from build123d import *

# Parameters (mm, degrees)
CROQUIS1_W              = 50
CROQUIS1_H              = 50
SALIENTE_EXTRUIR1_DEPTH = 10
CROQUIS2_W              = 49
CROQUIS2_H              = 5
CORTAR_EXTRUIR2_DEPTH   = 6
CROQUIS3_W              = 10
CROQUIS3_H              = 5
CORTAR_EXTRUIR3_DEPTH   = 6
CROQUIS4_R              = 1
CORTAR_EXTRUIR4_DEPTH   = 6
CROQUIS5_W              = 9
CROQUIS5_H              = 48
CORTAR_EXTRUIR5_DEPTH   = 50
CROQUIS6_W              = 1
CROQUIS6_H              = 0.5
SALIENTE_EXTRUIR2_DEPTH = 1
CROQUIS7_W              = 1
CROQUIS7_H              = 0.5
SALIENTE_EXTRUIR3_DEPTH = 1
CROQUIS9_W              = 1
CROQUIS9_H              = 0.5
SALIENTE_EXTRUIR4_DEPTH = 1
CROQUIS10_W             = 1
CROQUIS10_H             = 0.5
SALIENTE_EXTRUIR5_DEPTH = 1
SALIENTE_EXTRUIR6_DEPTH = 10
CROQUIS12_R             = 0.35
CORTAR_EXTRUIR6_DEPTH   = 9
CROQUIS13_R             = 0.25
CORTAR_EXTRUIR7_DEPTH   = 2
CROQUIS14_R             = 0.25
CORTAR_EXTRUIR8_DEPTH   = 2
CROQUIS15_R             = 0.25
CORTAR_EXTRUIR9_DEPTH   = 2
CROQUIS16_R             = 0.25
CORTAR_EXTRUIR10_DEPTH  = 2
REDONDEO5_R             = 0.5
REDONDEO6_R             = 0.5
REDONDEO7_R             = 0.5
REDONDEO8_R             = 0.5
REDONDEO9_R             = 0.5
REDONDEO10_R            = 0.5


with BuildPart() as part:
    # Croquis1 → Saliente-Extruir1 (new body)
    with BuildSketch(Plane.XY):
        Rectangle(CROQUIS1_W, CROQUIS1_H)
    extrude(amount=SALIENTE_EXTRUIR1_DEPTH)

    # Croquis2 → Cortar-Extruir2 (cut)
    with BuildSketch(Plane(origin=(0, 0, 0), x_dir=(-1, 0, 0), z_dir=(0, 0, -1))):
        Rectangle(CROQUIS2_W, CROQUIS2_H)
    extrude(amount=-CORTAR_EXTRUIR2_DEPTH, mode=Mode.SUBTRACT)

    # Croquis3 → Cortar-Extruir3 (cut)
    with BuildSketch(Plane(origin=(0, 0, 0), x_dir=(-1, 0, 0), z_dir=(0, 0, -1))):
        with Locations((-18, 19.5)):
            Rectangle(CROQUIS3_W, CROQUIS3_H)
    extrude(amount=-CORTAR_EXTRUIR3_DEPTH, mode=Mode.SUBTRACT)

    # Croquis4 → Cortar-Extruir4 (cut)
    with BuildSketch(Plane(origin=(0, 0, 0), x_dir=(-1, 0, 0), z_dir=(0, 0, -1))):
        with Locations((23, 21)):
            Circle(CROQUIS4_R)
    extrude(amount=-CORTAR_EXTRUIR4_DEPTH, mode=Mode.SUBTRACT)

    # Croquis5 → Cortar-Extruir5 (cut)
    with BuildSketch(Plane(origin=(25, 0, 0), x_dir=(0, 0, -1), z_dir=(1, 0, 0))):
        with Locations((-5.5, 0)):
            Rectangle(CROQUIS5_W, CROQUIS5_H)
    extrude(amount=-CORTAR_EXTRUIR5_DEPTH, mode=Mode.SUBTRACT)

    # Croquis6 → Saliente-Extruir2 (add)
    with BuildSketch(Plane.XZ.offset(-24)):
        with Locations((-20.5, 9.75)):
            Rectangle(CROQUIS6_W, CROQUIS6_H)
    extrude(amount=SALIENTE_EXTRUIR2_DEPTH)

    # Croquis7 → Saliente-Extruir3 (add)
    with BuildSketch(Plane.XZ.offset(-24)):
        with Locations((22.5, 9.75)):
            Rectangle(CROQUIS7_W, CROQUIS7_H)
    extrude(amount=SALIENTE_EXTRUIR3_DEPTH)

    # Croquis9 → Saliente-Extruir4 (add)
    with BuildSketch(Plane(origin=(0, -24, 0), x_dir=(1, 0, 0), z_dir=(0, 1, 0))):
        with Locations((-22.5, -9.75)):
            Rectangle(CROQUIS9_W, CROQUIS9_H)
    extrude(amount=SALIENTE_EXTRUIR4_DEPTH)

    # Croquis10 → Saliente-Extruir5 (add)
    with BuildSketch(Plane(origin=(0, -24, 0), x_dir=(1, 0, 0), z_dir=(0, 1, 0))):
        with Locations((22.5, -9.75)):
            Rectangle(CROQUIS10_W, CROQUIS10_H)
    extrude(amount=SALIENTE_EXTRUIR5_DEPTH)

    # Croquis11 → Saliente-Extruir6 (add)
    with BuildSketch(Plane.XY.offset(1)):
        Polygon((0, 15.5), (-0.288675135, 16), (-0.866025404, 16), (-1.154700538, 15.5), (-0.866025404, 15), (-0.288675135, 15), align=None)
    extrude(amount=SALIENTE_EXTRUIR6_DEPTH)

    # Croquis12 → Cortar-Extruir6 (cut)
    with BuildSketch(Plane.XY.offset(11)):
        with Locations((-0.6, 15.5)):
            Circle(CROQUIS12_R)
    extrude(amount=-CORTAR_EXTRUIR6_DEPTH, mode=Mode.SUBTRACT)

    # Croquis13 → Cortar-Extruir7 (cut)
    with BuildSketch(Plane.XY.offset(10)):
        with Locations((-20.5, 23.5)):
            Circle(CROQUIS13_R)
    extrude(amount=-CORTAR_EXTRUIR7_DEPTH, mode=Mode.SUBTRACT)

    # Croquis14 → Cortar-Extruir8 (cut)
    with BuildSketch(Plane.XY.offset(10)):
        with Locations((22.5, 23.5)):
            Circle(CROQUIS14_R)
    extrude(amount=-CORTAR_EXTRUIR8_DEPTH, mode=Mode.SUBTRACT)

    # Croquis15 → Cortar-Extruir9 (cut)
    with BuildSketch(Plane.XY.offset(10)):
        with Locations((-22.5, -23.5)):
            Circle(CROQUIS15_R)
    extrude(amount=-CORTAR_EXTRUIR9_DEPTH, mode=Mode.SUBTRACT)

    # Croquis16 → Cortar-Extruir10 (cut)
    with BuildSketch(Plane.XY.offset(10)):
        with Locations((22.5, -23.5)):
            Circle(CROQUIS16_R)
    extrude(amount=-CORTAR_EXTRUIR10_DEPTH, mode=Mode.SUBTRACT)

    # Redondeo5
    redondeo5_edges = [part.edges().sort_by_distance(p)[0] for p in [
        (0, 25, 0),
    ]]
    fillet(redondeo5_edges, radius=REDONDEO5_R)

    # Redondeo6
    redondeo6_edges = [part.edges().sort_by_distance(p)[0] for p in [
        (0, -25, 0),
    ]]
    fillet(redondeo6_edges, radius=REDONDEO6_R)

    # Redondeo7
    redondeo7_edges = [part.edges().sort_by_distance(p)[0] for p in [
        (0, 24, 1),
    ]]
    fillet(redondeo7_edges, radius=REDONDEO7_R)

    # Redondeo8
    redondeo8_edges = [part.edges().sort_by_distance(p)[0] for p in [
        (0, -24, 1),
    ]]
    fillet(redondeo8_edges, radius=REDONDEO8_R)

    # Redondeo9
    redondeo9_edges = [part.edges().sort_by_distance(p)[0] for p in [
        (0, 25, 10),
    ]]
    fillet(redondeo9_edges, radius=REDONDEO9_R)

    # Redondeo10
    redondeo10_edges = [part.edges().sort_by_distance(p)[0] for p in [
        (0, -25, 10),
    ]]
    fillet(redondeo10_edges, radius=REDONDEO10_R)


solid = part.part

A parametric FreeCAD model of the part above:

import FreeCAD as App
import Part
import Sketcher
from FreeCAD import Vector
Q = App.Units.Quantity


def edges_at(feature, points):
    """Names of the edges that pass closest to the given points."""
    edges = feature.Shape.Edges
    near = lambda p: min(range(len(edges)), key=lambda i: edges[i].distToShape(Part.Vertex(*p))[0])
    return sorted({f"Edge{near(p) + 1}" for p in points})


def add_polygon(sketch, points):
    """Adds a closed chain of lines whose ends are joined by coincident constraints."""
    first, n = sketch.GeometryCount, len(points)
    for a, b in zip(points, points[1:] + points[:1]):
        sketch.addGeometry(Part.LineSegment(App.Vector(*a, 0), App.Vector(*b, 0)), False)
    for i in range(n):
        sketch.addConstraint(Sketcher.Constraint("Coincident", first + i, 2, first + (i + 1) % n, 1))

doc = App.newDocument("Part")
params = doc.addObject("Spreadsheet::Sheet", "Params")
for row, (alias, value) in enumerate([
    ("sketch1_width", "50 mm"),
    ("pad1_length", "10 mm"),
    ("sketch2_width", "49 mm"),
    ("sketch2_height", "5 mm"),
    ("pocket1_length", "6 mm"),
    ("sketch3_width", "10 mm"),
    ("sketch3_height", "5 mm"),
    ("pocket2_length", "6 mm"),
    ("sketch4_diameter", "2 mm"),
    ("pocket3_length", "6 mm"),
    ("sketch5_width", "48 mm"),
    ("sketch5_height", "9 mm"),
    ("pocket4_length", "50 mm"),
    ("sketch6_width", "1 mm"),
    ("sketch6_height", "0.5 mm"),
    ("pad2_length", "1 mm"),
    ("sketch7_width", "1 mm"),
    ("sketch7_height", "0.5 mm"),
    ("pad3_length", "1 mm"),
    ("sketch8_width", "1 mm"),
    ("sketch8_height", "0.5 mm"),
    ("pad4_length", "1 mm"),
    ("sketch9_width", "1 mm"),
    ("sketch9_height", "0.5 mm"),
    ("pad5_length", "1 mm"),
    ("pad6_length", "10 mm"),
    ("sketch11_diameter", "0.7 mm"),
    ("pocket5_length", "9 mm"),
    ("sketch12_diameter", "0.5 mm"),
    ("pocket6_length", "2 mm"),
    ("sketch13_diameter", "0.5 mm"),
    ("pocket7_length", "2 mm"),
    ("sketch14_diameter", "0.5 mm"),
    ("pocket8_length", "2 mm"),
    ("sketch15_diameter", "0.5 mm"),
    ("pocket9_length", "2 mm"),
    ("fillet_radius", "0.5 mm"),
    ("fillet2_radius", "0.5 mm"),
    ("fillet3_radius", "0.5 mm"),
    ("fillet4_radius", "0.5 mm"),
    ("fillet5_radius", "0.5 mm"),
    ("fillet6_radius", "0.5 mm"),
], start=1):
    params.set(f"A{row}", alias)
    params.set(f"B{row}", "=" + value)
    params.setAlias(f"B{row}", alias)

body = doc.addObject("PartDesign::Body", "Body")

# Sketch on XY plane
sketch1 = body.newObject("Sketcher::SketchObject", "Sketch")
sketch1.AttachmentSupport = (doc.getObject("XY_Plane"), [""])
sketch1.MapMode = "FlatFace"
add_polygon(sketch1, [(-25, 25), (-25, -25), (25, -25), (25, 25)])  # lines 0-3
sketch1.addConstraint([
    Sketcher.Constraint("Vertical", 0),
    Sketcher.Constraint("Horizontal", 1),
    Sketcher.Constraint("Vertical", 2),
    Sketcher.Constraint("Horizontal", 3),
    Sketcher.Constraint("Symmetric", 0, 2, 2, 2, -1, 1),
    Sketcher.Constraint("Equal", 3, 0),
    Sketcher.Constraint("DistanceX", 1, 1, 1, 2, 50.0),
])
sketch1.setExpression("Constraints[10]", "Params.sketch1_width")
pad1 = body.newObject("PartDesign::Pad", "Pad")
pad1.Profile = sketch1
pad1.setExpression("Length", "Params.pad1_length")

# Sketch on XY plane
sketch2 = body.newObject("Sketcher::SketchObject", "Sketch001")
sketch2.AttachmentSupport = (doc.getObject("XY_Plane"), [""])
sketch2.MapMode = "FlatFace"
add_polygon(sketch2, [(24, 2), (24, -2), (-24, -2), (-24, 2)])  # lines 0-3
sketch2.addConstraint([
    Sketcher.Constraint("Vertical", 0),
    Sketcher.Constraint("Horizontal", 1),
    Sketcher.Constraint("Vertical", 2),
    Sketcher.Constraint("Horizontal", 3),
    Sketcher.Constraint("Symmetric", 0, 2, 2, 2, -1, 1),
    Sketcher.Constraint("DistanceX", 1, 2, 1, 1, 49.0),
    Sketcher.Constraint("DistanceY", 0, 2, 0, 1, 5.0),
])
sketch2.setExpression("Constraints[9]", "Params.sketch2_width")
sketch2.setExpression("Constraints[10]", "Params.sketch2_height")
pocket1 = body.newObject("PartDesign::Pocket", "Pocket")
pocket1.Profile = sketch2
pocket1.setExpression("Length", "Params.pocket1_length")
pocket1.Reversed = True

# Sketch on XY plane
sketch3 = body.newObject("Sketcher::SketchObject", "Sketch002")
sketch3.AttachmentSupport = (doc.getObject("XY_Plane"), [""])
sketch3.MapMode = "FlatFace"
add_polygon(sketch3, [(23, 22), (23, 17), (13, 17), (13, 22)])  # lines 0-3
sketch3.addConstraint([
    Sketcher.Constraint("Vertical", 0),
    Sketcher.Constraint("Horizontal", 1),
    Sketcher.Constraint("Vertical", 2),
    Sketcher.Constraint("Horizontal", 3),
    Sketcher.Constraint("DistanceX", 1, 2, 1, 1, 10.0),
    Sketcher.Constraint("DistanceY", 0, 2, 0, 1, 5.0),
    Sketcher.Constraint("DistanceX", -1, 1, 0, 2, 23.0),
    Sketcher.Constraint("DistanceY", -1, 1, 0, 2, 17.0),
])
sketch3.setExpression("Constraints[8]", "Params.sketch3_width")
sketch3.setExpression("Constraints[9]", "Params.sketch3_height")
pocket2 = body.newObject("PartDesign::Pocket", "Pocket001")
pocket2.Profile = sketch3
pocket2.setExpression("Length", "Params.pocket2_length")
pocket2.Reversed = True

# Sketch on XY plane
sketch4 = body.newObject("Sketcher::SketchObject", "Sketch003")
sketch4.AttachmentSupport = (doc.getObject("XY_Plane"), [""])
sketch4.MapMode = "FlatFace"
sketch4.addGeometry(Part.Circle(Vector(-23, 21, 0), Vector(0, 0, 1), 1), False)
sketch4.addConstraint([
    Sketcher.Constraint("Diameter", 0, 2.0),
    Sketcher.Constraint("DistanceX", 0, 3, -1, 1, 23.0),
    Sketcher.Constraint("DistanceY", -1, 1, 0, 3, 21.0),
])
sketch4.setExpression("Constraints[0]", "Params.sketch4_diameter")
pocket3 = body.newObject("PartDesign::Pocket", "Pocket002")
pocket3.Profile = sketch4
pocket3.setExpression("Length", "Params.pocket3_length")
pocket3.Reversed = True

# Sketch on YZ plane
sketch5 = body.newObject("Sketcher::SketchObject", "Sketch004")
sketch5.AttachmentSupport = (doc.getObject("YZ_Plane"), [""])
sketch5.MapMode = "FlatFace"
sketch5.AttachmentOffset = App.Placement(Vector(0, 0, 25), App.Rotation())
add_polygon(sketch5, [(24, 10), (-24, 10), (-24, 1), (24, 1)])  # lines 0-3
sketch5.addConstraint([
    Sketcher.Constraint("Horizontal", 0),
    Sketcher.Constraint("Vertical", 1),
    Sketcher.Constraint("Horizontal", 2),
    Sketcher.Constraint("Vertical", 3),
    Sketcher.Constraint("DistanceX", 0, 2, 0, 1, 48.0),
    Sketcher.Constraint("DistanceY", 1, 2, 1, 1, 9.0),
    Sketcher.Constraint("DistanceX", 0, 2, -1, 1, 24.0),
    Sketcher.Constraint("DistanceY", -1, 1, 0, 2, 10.0),
])
sketch5.setExpression("Constraints[8]", "Params.sketch5_width")
sketch5.setExpression("Constraints[9]", "Params.sketch5_height")
pocket4 = body.newObject("PartDesign::Pocket", "Pocket003")
pocket4.Profile = sketch5
pocket4.setExpression("Length", "Params.pocket4_length")

# Sketch on XZ plane
sketch6 = body.newObject("Sketcher::SketchObject", "Sketch005")
sketch6.AttachmentSupport = (doc.getObject("XZ_Plane"), [""])
sketch6.MapMode = "FlatFace"
sketch6.AttachmentOffset = App.Placement(Vector(0, 0, -24), App.Rotation())
add_polygon(sketch6, [(-21, 10), (-21, 9.5), (-20, 9.5), (-20, 10)])  # lines 0-3
sketch6.addConstraint([
    Sketcher.Constraint("Vertical", 0),
    Sketcher.Constraint("Horizontal", 1),
    Sketcher.Constraint("Vertical", 2),
    Sketcher.Constraint("Horizontal", 3),
    Sketcher.Constraint("DistanceX", 1, 1, 1, 2, 1.0),
    Sketcher.Constraint("DistanceY", 0, 2, 0, 1, 0.5),
    Sketcher.Constraint("DistanceX", 0, 2, -1, 1, 21.0),
    Sketcher.Constraint("DistanceY", -1, 1, 2, 2, 10.0),
])
sketch6.setExpression("Constraints[8]", "Params.sketch6_width")
sketch6.setExpression("Constraints[9]", "Params.sketch6_height")
pad2 = body.newObject("PartDesign::Pad", "Pad001")
pad2.Profile = sketch6
pad2.setExpression("Length", "Params.pad2_length")

# Sketch on XZ plane
sketch7 = body.newObject("Sketcher::SketchObject", "Sketch006")
sketch7.AttachmentSupport = (doc.getObject("XZ_Plane"), [""])
sketch7.MapMode = "FlatFace"
sketch7.AttachmentOffset = App.Placement(Vector(0, 0, -24), App.Rotation())
add_polygon(sketch7, [(22, 10), (22, 9.5), (23, 9.5), (23, 10)])  # lines 0-3
sketch7.addConstraint([
    Sketcher.Constraint("Vertical", 0),
    Sketcher.Constraint("Horizontal", 1),
    Sketcher.Constraint("Vertical", 2),
    Sketcher.Constraint("Horizontal", 3),
    Sketcher.Constraint("DistanceX", 1, 1, 1, 2, 1.0),
    Sketcher.Constraint("DistanceY", 0, 2, 0, 1, 0.5),
    Sketcher.Constraint("DistanceX", -1, 1, 0, 2, 22.0),
    Sketcher.Constraint("DistanceY", -1, 1, 2, 2, 10.0),
])
sketch7.setExpression("Constraints[8]", "Params.sketch7_width")
sketch7.setExpression("Constraints[9]", "Params.sketch7_height")
pad3 = body.newObject("PartDesign::Pad", "Pad002")
pad3.Profile = sketch7
pad3.setExpression("Length", "Params.pad3_length")

# Sketch on XZ plane
sketch8 = body.newObject("Sketcher::SketchObject", "Sketch007")
sketch8.AttachmentSupport = (doc.getObject("XZ_Plane"), [""])
sketch8.MapMode = "FlatFace"
sketch8.AttachmentOffset = App.Placement(Vector(0, 0, 24), App.Rotation())
add_polygon(sketch8, [(-23, 9.5), (-23, 10), (-22, 10), (-22, 9.5)])  # lines 0-3
sketch8.addConstraint([
    Sketcher.Constraint("Vertical", 0),
    Sketcher.Constraint("Horizontal", 1),
    Sketcher.Constraint("Vertical", 2),
    Sketcher.Constraint("Horizontal", 3),
    Sketcher.Constraint("DistanceX", 1, 1, 1, 2, 1.0),
    Sketcher.Constraint("DistanceY", 0, 1, 0, 2, 0.5),
    Sketcher.Constraint("DistanceX", 0, 2, -1, 1, 23.0),
    Sketcher.Constraint("DistanceY", -1, 1, 0, 2, 10.0),
])
sketch8.setExpression("Constraints[8]", "Params.sketch8_width")
sketch8.setExpression("Constraints[9]", "Params.sketch8_height")
pad4 = body.newObject("PartDesign::Pad", "Pad003")
pad4.Profile = sketch8
pad4.setExpression("Length", "Params.pad4_length")
pad4.Reversed = True

# Sketch on XZ plane
sketch9 = body.newObject("Sketcher::SketchObject", "Sketch008")
sketch9.AttachmentSupport = (doc.getObject("XZ_Plane"), [""])
sketch9.MapMode = "FlatFace"
sketch9.AttachmentOffset = App.Placement(Vector(0, 0, 24), App.Rotation())
add_polygon(sketch9, [(22, 9.5), (22, 10), (23, 10), (23, 9.5)])  # lines 0-3
sketch9.addConstraint([
    Sketcher.Constraint("Vertical", 0),
    Sketcher.Constraint("Horizontal", 1),
    Sketcher.Constraint("Vertical", 2),
    Sketcher.Constraint("Horizontal", 3),
    Sketcher.Constraint("DistanceX", 1, 1, 1, 2, 1.0),
    Sketcher.Constraint("DistanceY", 0, 1, 0, 2, 0.5),
    Sketcher.Constraint("DistanceX", -1, 1, 0, 2, 22.0),
    Sketcher.Constraint("DistanceY", -1, 1, 0, 2, 10.0),
])
sketch9.setExpression("Constraints[8]", "Params.sketch9_width")
sketch9.setExpression("Constraints[9]", "Params.sketch9_height")
pad5 = body.newObject("PartDesign::Pad", "Pad004")
pad5.Profile = sketch9
pad5.setExpression("Length", "Params.pad5_length")
pad5.Reversed = True

# Sketch on XY plane
sketch10 = body.newObject("Sketcher::SketchObject", "Sketch009")
sketch10.AttachmentSupport = (doc.getObject("XY_Plane"), [""])
sketch10.MapMode = "FlatFace"
sketch10.AttachmentOffset = App.Placement(Vector(0, 0, 1), App.Rotation())
add_polygon(sketch10, [(0, 15.5), (-0.3, 16), (-0.9, 16), (-1.2, 15.5), (-0.9, 15), (-0.3, 15)])  # lines 0-5
sketch10.addConstraint([
    Sketcher.Constraint("Horizontal", 1),
    Sketcher.Constraint("Horizontal", 4),
    Sketcher.Constraint("PointOnObject", 5, 2, -2),
    Sketcher.Constraint("Parallel", 0, 3),
    Sketcher.Constraint("Parallel", 2, 5),
    Sketcher.Constraint("Horizontal", 2, 2, 5, 2),
    Sketcher.Constraint("Vertical", 1, 2, 3, 2),
    Sketcher.Constraint("Vertical", 0, 2, 4, 2),
    Sketcher.Constraint("Angle", 0, Q("120 deg")),
    Sketcher.Constraint("DistanceY", -1, 1, 0, 2, 16.0),
    Sketcher.Constraint("DistanceY", -1, 1, 3, 2, 15.0),
    Sketcher.Constraint("DistanceX", 1, 2, 1, 1, 0.57735),
])
pad6 = body.newObject("PartDesign::Pad", "Pad005")
pad6.Profile = sketch10
pad6.setExpression("Length", "Params.pad6_length")

# Sketch on XY plane
sketch11 = body.newObject("Sketcher::SketchObject", "Sketch010")
sketch11.AttachmentSupport = (doc.getObject("XY_Plane"), [""])
sketch11.MapMode = "FlatFace"
sketch11.AttachmentOffset = App.Placement(Vector(0, 0, 11), App.Rotation())
sketch11.addGeometry(Part.Circle(Vector(-0.6, 15.5, 0), Vector(0, 0, 1), 0.35), False)
sketch11.addConstraint([
    Sketcher.Constraint("Diameter", 0, 0.7),
    Sketcher.Constraint("DistanceX", 0, 3, -1, 1, 0.6),
    Sketcher.Constraint("DistanceY", -1, 1, 0, 3, 15.5),
])
sketch11.setExpression("Constraints[0]", "Params.sketch11_diameter")
pocket5 = body.newObject("PartDesign::Pocket", "Pocket004")
pocket5.Profile = sketch11
pocket5.setExpression("Length", "Params.pocket5_length")

# Sketch on XY plane
sketch12 = body.newObject("Sketcher::SketchObject", "Sketch011")
sketch12.AttachmentSupport = (doc.getObject("XY_Plane"), [""])
sketch12.MapMode = "FlatFace"
sketch12.AttachmentOffset = App.Placement(Vector(0, 0, 10), App.Rotation())
sketch12.addGeometry(Part.Circle(Vector(-20.5, 23.5, 0), Vector(0, 0, 1), 0.25), False)
sketch12.addConstraint([
    Sketcher.Constraint("Diameter", 0, 0.5),
    Sketcher.Constraint("DistanceX", 0, 3, -1, 1, 20.5),
    Sketcher.Constraint("DistanceY", -1, 1, 0, 3, 23.5),
])
sketch12.setExpression("Constraints[0]", "Params.sketch12_diameter")
pocket6 = body.newObject("PartDesign::Pocket", "Pocket005")
pocket6.Profile = sketch12
pocket6.setExpression("Length", "Params.pocket6_length")

# Sketch on XY plane
sketch13 = body.newObject("Sketcher::SketchObject", "Sketch012")
sketch13.AttachmentSupport = (doc.getObject("XY_Plane"), [""])
sketch13.MapMode = "FlatFace"
sketch13.AttachmentOffset = App.Placement(Vector(0, 0, 10), App.Rotation())
sketch13.addGeometry(Part.Circle(Vector(22.5, 23.5, 0), Vector(0, 0, 1), 0.25), False)
sketch13.addConstraint([
    Sketcher.Constraint("Diameter", 0, 0.5),
    Sketcher.Constraint("DistanceX", -1, 1, 0, 3, 22.5),
    Sketcher.Constraint("DistanceY", -1, 1, 0, 3, 23.5),
])
sketch13.setExpression("Constraints[0]", "Params.sketch13_diameter")
pocket7 = body.newObject("PartDesign::Pocket", "Pocket006")
pocket7.Profile = sketch13
pocket7.setExpression("Length", "Params.pocket7_length")

# Sketch on XY plane
sketch14 = body.newObject("Sketcher::SketchObject", "Sketch013")
sketch14.AttachmentSupport = (doc.getObject("XY_Plane"), [""])
sketch14.MapMode = "FlatFace"
sketch14.AttachmentOffset = App.Placement(Vector(0, 0, 10), App.Rotation())
sketch14.addGeometry(Part.Circle(Vector(-22.5, -23.5, 0), Vector(0, 0, 1), 0.25), False)
sketch14.addConstraint([
    Sketcher.Constraint("Diameter", 0, 0.5),
    Sketcher.Constraint("DistanceX", 0, 3, -1, 1, 22.5),
    Sketcher.Constraint("DistanceY", 0, 3, -1, 1, 23.5),
])
sketch14.setExpression("Constraints[0]", "Params.sketch14_diameter")
pocket8 = body.newObject("PartDesign::Pocket", "Pocket007")
pocket8.Profile = sketch14
pocket8.setExpression("Length", "Params.pocket8_length")

# Sketch on XY plane
sketch15 = body.newObject("Sketcher::SketchObject", "Sketch014")
sketch15.AttachmentSupport = (doc.getObject("XY_Plane"), [""])
sketch15.MapMode = "FlatFace"
sketch15.AttachmentOffset = App.Placement(Vector(0, 0, 10), App.Rotation())
sketch15.addGeometry(Part.Circle(Vector(22.5, -23.5, 0), Vector(0, 0, 1), 0.25), False)
sketch15.addConstraint([
    Sketcher.Constraint("Diameter", 0, 0.5),
    Sketcher.Constraint("DistanceX", -1, 1, 0, 3, 22.5),
    Sketcher.Constraint("DistanceY", 0, 3, -1, 1, 23.5),
])
sketch15.setExpression("Constraints[0]", "Params.sketch15_diameter")
pocket9 = body.newObject("PartDesign::Pocket", "Pocket008")
pocket9.Profile = sketch15
pocket9.setExpression("Length", "Params.pocket9_length")
doc.recompute()

fillet = body.newObject("PartDesign::Fillet", "Fillet")
fillet.Base = (pocket9, edges_at(pocket9, [(0, 25, 0)]))
fillet.setExpression("Radius", "Params.fillet_radius")
doc.recompute()

fillet2 = body.newObject("PartDesign::Fillet", "Fillet001")
fillet2.Base = (fillet, edges_at(fillet, [(0, -25, 0)]))
fillet2.setExpression("Radius", "Params.fillet2_radius")
doc.recompute()

fillet3 = body.newObject("PartDesign::Fillet", "Fillet002")
fillet3.Base = (fillet2, edges_at(fillet2, [(0, 24, 1)]))
fillet3.setExpression("Radius", "Params.fillet3_radius")
doc.recompute()

fillet4 = body.newObject("PartDesign::Fillet", "Fillet003")
fillet4.Base = (fillet3, edges_at(fillet3, [(0, -24, 1)]))
fillet4.setExpression("Radius", "Params.fillet4_radius")
doc.recompute()

fillet5 = body.newObject("PartDesign::Fillet", "Fillet004")
fillet5.Base = (fillet4, edges_at(fillet4, [(0, 25, 10)]))
fillet5.setExpression("Radius", "Params.fillet5_radius")
doc.recompute()

fillet6 = body.newObject("PartDesign::Fillet", "Fillet005")
fillet6.Base = (fillet5, edges_at(fillet5, [(0, -25, 10)]))
fillet6.setExpression("Radius", "Params.fillet6_radius")

doc.recompute()
